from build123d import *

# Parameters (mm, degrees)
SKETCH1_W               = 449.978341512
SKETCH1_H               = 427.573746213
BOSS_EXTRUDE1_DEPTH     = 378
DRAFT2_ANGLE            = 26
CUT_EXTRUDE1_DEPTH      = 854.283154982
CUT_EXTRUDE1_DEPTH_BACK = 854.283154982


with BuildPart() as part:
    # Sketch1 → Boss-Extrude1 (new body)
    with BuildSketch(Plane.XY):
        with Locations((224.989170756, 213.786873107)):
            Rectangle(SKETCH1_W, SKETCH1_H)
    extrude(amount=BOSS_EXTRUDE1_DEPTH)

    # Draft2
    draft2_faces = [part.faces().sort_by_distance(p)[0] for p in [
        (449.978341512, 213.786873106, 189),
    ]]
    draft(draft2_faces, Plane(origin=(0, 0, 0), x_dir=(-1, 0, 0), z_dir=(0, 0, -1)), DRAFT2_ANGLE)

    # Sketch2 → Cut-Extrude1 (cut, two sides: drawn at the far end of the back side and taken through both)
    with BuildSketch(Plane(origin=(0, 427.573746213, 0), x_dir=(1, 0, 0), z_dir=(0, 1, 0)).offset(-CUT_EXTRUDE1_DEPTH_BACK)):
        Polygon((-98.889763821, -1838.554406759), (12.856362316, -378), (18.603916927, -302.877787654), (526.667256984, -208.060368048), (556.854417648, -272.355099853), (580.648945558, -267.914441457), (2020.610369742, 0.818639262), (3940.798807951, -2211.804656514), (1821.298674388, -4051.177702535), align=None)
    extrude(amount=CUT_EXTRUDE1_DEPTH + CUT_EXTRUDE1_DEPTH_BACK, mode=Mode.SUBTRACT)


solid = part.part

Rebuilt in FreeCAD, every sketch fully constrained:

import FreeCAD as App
import Part
import Sketcher

V = App.Vector
Q = App.Units.Quantity


def faces_at(feature, points):
    """Names of the faces that lie closest to the given points."""
    faces = feature.Shape.Faces
    near = lambda p: min(range(len(faces)), key=lambda i: faces[i].distToShape(Part.Vertex(*p))[0])
    return sorted({f"Face{near(p) + 1}" for p in points})


def add_polygon(sketch, points):
    """Adds a closed chain of lines whose ends are joined by coincident constraints."""
    first, n = sketch.GeometryCount, len(points)
    for a, b in zip(points, points[1:] + points[:1]):
        sketch.addGeometry(Part.LineSegment(App.Vector(*a, 0), App.Vector(*b, 0)), False)
    for i in range(n):
        sketch.addConstraint(Sketcher.Constraint("Coincident", first + i, 2, first + (i + 1) % n, 1))

doc = App.newDocument("Part")
body = doc.addObject("PartDesign::Body", "Body")

# Sketch on XY plane
sketch1 = body.newObject("Sketcher::SketchObject", "Sketch")
sketch1.AttachmentSupport = (doc.getObject("XY_Plane"), [""])
sketch1.MapMode = "FlatFace"
add_polygon(sketch1, [(0, 428), (0, 0), (450, 0), (450, 428)])  # lines 0-3
sketch1.addConstraint(Sketcher.Constraint("Vertical", 0))
sketch1.addConstraint(Sketcher.Constraint("Horizontal", 1))
sketch1.addConstraint(Sketcher.Constraint("Vertical", 2))
sketch1.addConstraint(Sketcher.Constraint("Horizontal", 3))
sketch1.addConstraint(Sketcher.Constraint("Coincident", 0, 2, -1, 1))
sketch1.addConstraint(Sketcher.Constraint("DistanceX", 1, 1, 1, 2, Q("449.978342 mm")))
sketch1.addConstraint(Sketcher.Constraint("DistanceY", 0, 2, 0, 1, Q("427.573746 mm")))
pad1 = body.newObject("PartDesign::Pad", "Pad")
pad1.Profile = sketch1
pad1.Length = 378
doc.recompute()

draft = body.newObject("PartDesign::Draft", "Draft")
draft.Base = (pad1, faces_at(pad1, [(449.978, 213.787, 189)]))
draft.NeutralPlane = (doc.getObject("XY_Plane"), [""])
draft.Angle = 26
draft.Reversed = True

# Sketch on XZ plane
sketch2 = body.newObject("Sketcher::SketchObject", "Sketch001")
sketch2.AttachmentSupport = (doc.getObject("XZ_Plane"), [""])
sketch2.MapMode = "FlatFace"
sketch2.AttachmentOffset = App.Placement(V(0, 0, -427.573746), App.Rotation())
add_polygon(sketch2, [(13, 378), (-99, 1839), (1821, 4051), (3941, 2212), (2021, -1), (581, 268), (557, 272), (527, 208), (19, 303)])  # lines 0-8
sketch2.addConstraint(Sketcher.Constraint("Perpendicular", 1, 2))
sketch2.addConstraint(Sketcher.Constraint("Perpendicular", 2, 3))
sketch2.addConstraint(Sketcher.Constraint("Parallel", 4, 5))
sketch2.addConstraint(Sketcher.Constraint("Parallel", 5, 7))
sketch2.addConstraint(Sketcher.Constraint("Parallel", 0, 8))
sketch2.addConstraint(Sketcher.Constraint("Equal", 1, 3))
sketch2.addConstraint(Sketcher.Constraint("Equal", 0, 4))
sketch2.addConstraint(Sketcher.Constraint("DistanceY", -1, 1, 8, 2, Q("378 mm")))
sketch2.addConstraint(Sketcher.Constraint("DistanceY", -1, 1, 5, 2, Q("272.3551 mm")))
sketch2.addConstraint(Sketcher.Constraint("DistanceX", 7, 2, 5, 2, Q("538.250501 mm")))
sketch2.addConstraint(Sketcher.Constraint("Distance", 5, Q("24.205351 mm")))
sketch2.addConstraint(Sketcher.Constraint("DistanceX", -1, 1, 3, 2, Q("2020.61037 mm")))
sketch2.addConstraint(Sketcher.Constraint("DistanceY", 3, 2, -1, 1, Q("0.818639 mm")))
sketch2.addConstraint(Sketcher.Constraint("DistanceY", -1, 1, 6, 2, Q("208.060368 mm")))
sketch2.addConstraint(Sketcher.Constraint("DistanceX", 0, 2, 1, 2, Q("1920.188438 mm")))
sketch2.addConstraint(Sketcher.Constraint("DistanceX", 0, 2, 2, 2, Q("4039.688572 mm")))
sketch2.addConstraint(Sketcher.Constraint("DistanceY", 0, 2, 2, 2, Q("373.25025 mm")))
sketch2.addConstraint(Sketcher.Constraint("DistanceX", 6, 2, 5, 2, Q("30.187161 mm")))
pocket1 = body.newObject("PartDesign::Pocket", "Pocket")
pocket1.Profile = sketch2
pocket1.Type = "ThroughAll"
pocket1.Midplane = True

doc.recompute()
